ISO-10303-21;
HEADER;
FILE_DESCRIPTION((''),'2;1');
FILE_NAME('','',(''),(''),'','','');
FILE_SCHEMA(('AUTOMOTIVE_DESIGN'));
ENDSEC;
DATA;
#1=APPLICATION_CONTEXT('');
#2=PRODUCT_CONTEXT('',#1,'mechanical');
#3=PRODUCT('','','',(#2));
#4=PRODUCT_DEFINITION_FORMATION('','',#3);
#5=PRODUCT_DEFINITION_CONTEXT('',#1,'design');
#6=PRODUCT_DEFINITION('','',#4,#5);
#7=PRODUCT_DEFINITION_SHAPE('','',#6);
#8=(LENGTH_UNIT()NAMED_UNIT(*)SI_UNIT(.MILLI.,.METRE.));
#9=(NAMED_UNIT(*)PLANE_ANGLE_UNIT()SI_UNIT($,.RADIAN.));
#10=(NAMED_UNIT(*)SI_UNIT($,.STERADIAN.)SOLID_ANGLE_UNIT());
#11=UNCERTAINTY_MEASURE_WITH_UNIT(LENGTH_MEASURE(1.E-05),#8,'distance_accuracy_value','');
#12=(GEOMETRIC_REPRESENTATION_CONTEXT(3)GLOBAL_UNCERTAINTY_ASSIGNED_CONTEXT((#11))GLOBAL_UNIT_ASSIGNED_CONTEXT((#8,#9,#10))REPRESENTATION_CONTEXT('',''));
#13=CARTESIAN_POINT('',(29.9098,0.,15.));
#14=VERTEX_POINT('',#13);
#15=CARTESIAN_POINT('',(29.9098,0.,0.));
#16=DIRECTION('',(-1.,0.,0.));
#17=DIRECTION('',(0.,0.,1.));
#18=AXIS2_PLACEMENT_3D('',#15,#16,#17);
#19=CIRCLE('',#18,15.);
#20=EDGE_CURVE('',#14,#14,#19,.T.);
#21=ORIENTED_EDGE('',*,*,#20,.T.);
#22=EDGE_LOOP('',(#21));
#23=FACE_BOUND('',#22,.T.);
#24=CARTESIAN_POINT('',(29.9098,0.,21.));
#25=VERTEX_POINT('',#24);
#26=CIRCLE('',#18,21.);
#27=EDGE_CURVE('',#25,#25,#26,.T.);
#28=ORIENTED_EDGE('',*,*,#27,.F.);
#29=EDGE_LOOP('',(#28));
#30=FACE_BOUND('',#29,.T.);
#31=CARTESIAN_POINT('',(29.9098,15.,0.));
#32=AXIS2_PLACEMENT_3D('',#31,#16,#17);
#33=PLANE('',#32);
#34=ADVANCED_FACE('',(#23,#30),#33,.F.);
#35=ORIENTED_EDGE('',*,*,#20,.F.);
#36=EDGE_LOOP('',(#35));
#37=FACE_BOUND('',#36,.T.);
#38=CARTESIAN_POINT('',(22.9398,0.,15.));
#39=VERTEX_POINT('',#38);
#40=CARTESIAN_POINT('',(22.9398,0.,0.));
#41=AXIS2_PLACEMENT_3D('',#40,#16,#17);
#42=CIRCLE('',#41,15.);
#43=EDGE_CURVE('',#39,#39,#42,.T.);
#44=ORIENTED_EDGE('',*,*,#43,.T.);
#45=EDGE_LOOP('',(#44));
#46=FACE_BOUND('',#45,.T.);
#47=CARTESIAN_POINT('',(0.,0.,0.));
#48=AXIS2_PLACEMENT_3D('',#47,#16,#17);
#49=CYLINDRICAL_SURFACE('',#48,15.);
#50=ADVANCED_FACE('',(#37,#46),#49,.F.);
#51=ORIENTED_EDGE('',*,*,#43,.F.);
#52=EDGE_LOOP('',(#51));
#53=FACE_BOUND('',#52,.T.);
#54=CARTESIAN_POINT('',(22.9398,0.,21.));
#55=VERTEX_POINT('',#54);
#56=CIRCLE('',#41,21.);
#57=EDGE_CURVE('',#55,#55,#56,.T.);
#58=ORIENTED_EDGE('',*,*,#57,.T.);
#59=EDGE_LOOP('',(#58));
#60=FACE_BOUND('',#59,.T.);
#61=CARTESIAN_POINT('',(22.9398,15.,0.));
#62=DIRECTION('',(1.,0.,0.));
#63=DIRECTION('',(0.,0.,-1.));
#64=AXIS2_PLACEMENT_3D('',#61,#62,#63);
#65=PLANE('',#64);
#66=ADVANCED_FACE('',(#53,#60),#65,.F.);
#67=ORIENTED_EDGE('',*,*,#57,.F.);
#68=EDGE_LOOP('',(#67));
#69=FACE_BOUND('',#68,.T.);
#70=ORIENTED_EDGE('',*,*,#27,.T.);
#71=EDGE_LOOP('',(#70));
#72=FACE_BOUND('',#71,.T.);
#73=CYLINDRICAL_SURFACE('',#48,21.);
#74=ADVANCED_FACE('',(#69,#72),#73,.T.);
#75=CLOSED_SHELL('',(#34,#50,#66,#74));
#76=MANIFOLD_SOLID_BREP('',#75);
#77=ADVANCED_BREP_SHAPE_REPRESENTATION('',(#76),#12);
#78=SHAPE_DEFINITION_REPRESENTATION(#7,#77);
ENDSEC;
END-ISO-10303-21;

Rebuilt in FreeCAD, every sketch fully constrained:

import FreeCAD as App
import Part
import Sketcher

doc = App.newDocument("Part")
params = doc.addObject("Spreadsheet::Sheet", "Params")
for row, (alias, value) in enumerate([
    ("sketch1_height", "6 mm"),
    ("sketch1_width", "6.97 mm"),
    ("revolution_angle", "360 deg"),
], start=1):
    params.set(f"A{row}", alias)
    params.set(f"B{row}", "=" + value)
    params.setAlias(f"B{row}", alias)

body = doc.addObject("PartDesign::Body", "Body")

# Sketch on XY plane
sketch1 = body.newObject("Sketcher::SketchObject", "Sketch")
sketch1.AttachmentSupport = (doc.getObject("XY_Plane"), [""])
sketch1.MapMode = "FlatFace"
sketch1.addGeometry([
    Part.LineSegment(App.Vector(22.9398, 21, 0), App.Vector(22.9398, 15, 0)),
    Part.LineSegment(App.Vector(22.9398, 15, 0), App.Vector(29.9098, 15, 0)),
    Part.LineSegment(App.Vector(29.9098, 15, 0), App.Vector(29.9098, 21, 0)),
    Part.LineSegment(App.Vector(29.9098, 21, 0), App.Vector(22.9398, 21, 0)),
], False)
sketch1.addConstraint([
    Sketcher.Constraint("Coincident", 0, 2, 1, 1),
    Sketcher.Constraint("Coincident", 1, 2, 2, 1),
    Sketcher.Constraint("Coincident", 2, 2, 3, 1),
    Sketcher.Constraint("Coincident", 3, 2, 0, 1),
    Sketcher.Constraint("Vertical", 0),
    Sketcher.Constraint("Horizontal", 1),
    Sketcher.Constraint("Vertical", 2),
    Sketcher.Constraint("Horizontal", 3),
    Sketcher.Constraint("DistanceY", 0, 2, 0, 1, 6.0),
    Sketcher.Constraint("DistanceY", -1, 1, 0, 2, 15.0),
    Sketcher.Constraint("DistanceX", 1, 1, 1, 2, 6.97),
    Sketcher.Constraint("DistanceX", -1, 1, 0, 2, 22.9398),
])
sketch1.setExpression("Constraints[8]", "Params.sketch1_height")
sketch1.setExpression("Constraints[10]", "Params.sketch1_width")
revolution = body.newObject("PartDesign::Revolution", "Revolution")
revolution.Profile = sketch1
revolution.ReferenceAxis = (sketch1, ["H_Axis"])
revolution.setExpression("Angle", "Params.revolution_angle")

doc.recompute()
